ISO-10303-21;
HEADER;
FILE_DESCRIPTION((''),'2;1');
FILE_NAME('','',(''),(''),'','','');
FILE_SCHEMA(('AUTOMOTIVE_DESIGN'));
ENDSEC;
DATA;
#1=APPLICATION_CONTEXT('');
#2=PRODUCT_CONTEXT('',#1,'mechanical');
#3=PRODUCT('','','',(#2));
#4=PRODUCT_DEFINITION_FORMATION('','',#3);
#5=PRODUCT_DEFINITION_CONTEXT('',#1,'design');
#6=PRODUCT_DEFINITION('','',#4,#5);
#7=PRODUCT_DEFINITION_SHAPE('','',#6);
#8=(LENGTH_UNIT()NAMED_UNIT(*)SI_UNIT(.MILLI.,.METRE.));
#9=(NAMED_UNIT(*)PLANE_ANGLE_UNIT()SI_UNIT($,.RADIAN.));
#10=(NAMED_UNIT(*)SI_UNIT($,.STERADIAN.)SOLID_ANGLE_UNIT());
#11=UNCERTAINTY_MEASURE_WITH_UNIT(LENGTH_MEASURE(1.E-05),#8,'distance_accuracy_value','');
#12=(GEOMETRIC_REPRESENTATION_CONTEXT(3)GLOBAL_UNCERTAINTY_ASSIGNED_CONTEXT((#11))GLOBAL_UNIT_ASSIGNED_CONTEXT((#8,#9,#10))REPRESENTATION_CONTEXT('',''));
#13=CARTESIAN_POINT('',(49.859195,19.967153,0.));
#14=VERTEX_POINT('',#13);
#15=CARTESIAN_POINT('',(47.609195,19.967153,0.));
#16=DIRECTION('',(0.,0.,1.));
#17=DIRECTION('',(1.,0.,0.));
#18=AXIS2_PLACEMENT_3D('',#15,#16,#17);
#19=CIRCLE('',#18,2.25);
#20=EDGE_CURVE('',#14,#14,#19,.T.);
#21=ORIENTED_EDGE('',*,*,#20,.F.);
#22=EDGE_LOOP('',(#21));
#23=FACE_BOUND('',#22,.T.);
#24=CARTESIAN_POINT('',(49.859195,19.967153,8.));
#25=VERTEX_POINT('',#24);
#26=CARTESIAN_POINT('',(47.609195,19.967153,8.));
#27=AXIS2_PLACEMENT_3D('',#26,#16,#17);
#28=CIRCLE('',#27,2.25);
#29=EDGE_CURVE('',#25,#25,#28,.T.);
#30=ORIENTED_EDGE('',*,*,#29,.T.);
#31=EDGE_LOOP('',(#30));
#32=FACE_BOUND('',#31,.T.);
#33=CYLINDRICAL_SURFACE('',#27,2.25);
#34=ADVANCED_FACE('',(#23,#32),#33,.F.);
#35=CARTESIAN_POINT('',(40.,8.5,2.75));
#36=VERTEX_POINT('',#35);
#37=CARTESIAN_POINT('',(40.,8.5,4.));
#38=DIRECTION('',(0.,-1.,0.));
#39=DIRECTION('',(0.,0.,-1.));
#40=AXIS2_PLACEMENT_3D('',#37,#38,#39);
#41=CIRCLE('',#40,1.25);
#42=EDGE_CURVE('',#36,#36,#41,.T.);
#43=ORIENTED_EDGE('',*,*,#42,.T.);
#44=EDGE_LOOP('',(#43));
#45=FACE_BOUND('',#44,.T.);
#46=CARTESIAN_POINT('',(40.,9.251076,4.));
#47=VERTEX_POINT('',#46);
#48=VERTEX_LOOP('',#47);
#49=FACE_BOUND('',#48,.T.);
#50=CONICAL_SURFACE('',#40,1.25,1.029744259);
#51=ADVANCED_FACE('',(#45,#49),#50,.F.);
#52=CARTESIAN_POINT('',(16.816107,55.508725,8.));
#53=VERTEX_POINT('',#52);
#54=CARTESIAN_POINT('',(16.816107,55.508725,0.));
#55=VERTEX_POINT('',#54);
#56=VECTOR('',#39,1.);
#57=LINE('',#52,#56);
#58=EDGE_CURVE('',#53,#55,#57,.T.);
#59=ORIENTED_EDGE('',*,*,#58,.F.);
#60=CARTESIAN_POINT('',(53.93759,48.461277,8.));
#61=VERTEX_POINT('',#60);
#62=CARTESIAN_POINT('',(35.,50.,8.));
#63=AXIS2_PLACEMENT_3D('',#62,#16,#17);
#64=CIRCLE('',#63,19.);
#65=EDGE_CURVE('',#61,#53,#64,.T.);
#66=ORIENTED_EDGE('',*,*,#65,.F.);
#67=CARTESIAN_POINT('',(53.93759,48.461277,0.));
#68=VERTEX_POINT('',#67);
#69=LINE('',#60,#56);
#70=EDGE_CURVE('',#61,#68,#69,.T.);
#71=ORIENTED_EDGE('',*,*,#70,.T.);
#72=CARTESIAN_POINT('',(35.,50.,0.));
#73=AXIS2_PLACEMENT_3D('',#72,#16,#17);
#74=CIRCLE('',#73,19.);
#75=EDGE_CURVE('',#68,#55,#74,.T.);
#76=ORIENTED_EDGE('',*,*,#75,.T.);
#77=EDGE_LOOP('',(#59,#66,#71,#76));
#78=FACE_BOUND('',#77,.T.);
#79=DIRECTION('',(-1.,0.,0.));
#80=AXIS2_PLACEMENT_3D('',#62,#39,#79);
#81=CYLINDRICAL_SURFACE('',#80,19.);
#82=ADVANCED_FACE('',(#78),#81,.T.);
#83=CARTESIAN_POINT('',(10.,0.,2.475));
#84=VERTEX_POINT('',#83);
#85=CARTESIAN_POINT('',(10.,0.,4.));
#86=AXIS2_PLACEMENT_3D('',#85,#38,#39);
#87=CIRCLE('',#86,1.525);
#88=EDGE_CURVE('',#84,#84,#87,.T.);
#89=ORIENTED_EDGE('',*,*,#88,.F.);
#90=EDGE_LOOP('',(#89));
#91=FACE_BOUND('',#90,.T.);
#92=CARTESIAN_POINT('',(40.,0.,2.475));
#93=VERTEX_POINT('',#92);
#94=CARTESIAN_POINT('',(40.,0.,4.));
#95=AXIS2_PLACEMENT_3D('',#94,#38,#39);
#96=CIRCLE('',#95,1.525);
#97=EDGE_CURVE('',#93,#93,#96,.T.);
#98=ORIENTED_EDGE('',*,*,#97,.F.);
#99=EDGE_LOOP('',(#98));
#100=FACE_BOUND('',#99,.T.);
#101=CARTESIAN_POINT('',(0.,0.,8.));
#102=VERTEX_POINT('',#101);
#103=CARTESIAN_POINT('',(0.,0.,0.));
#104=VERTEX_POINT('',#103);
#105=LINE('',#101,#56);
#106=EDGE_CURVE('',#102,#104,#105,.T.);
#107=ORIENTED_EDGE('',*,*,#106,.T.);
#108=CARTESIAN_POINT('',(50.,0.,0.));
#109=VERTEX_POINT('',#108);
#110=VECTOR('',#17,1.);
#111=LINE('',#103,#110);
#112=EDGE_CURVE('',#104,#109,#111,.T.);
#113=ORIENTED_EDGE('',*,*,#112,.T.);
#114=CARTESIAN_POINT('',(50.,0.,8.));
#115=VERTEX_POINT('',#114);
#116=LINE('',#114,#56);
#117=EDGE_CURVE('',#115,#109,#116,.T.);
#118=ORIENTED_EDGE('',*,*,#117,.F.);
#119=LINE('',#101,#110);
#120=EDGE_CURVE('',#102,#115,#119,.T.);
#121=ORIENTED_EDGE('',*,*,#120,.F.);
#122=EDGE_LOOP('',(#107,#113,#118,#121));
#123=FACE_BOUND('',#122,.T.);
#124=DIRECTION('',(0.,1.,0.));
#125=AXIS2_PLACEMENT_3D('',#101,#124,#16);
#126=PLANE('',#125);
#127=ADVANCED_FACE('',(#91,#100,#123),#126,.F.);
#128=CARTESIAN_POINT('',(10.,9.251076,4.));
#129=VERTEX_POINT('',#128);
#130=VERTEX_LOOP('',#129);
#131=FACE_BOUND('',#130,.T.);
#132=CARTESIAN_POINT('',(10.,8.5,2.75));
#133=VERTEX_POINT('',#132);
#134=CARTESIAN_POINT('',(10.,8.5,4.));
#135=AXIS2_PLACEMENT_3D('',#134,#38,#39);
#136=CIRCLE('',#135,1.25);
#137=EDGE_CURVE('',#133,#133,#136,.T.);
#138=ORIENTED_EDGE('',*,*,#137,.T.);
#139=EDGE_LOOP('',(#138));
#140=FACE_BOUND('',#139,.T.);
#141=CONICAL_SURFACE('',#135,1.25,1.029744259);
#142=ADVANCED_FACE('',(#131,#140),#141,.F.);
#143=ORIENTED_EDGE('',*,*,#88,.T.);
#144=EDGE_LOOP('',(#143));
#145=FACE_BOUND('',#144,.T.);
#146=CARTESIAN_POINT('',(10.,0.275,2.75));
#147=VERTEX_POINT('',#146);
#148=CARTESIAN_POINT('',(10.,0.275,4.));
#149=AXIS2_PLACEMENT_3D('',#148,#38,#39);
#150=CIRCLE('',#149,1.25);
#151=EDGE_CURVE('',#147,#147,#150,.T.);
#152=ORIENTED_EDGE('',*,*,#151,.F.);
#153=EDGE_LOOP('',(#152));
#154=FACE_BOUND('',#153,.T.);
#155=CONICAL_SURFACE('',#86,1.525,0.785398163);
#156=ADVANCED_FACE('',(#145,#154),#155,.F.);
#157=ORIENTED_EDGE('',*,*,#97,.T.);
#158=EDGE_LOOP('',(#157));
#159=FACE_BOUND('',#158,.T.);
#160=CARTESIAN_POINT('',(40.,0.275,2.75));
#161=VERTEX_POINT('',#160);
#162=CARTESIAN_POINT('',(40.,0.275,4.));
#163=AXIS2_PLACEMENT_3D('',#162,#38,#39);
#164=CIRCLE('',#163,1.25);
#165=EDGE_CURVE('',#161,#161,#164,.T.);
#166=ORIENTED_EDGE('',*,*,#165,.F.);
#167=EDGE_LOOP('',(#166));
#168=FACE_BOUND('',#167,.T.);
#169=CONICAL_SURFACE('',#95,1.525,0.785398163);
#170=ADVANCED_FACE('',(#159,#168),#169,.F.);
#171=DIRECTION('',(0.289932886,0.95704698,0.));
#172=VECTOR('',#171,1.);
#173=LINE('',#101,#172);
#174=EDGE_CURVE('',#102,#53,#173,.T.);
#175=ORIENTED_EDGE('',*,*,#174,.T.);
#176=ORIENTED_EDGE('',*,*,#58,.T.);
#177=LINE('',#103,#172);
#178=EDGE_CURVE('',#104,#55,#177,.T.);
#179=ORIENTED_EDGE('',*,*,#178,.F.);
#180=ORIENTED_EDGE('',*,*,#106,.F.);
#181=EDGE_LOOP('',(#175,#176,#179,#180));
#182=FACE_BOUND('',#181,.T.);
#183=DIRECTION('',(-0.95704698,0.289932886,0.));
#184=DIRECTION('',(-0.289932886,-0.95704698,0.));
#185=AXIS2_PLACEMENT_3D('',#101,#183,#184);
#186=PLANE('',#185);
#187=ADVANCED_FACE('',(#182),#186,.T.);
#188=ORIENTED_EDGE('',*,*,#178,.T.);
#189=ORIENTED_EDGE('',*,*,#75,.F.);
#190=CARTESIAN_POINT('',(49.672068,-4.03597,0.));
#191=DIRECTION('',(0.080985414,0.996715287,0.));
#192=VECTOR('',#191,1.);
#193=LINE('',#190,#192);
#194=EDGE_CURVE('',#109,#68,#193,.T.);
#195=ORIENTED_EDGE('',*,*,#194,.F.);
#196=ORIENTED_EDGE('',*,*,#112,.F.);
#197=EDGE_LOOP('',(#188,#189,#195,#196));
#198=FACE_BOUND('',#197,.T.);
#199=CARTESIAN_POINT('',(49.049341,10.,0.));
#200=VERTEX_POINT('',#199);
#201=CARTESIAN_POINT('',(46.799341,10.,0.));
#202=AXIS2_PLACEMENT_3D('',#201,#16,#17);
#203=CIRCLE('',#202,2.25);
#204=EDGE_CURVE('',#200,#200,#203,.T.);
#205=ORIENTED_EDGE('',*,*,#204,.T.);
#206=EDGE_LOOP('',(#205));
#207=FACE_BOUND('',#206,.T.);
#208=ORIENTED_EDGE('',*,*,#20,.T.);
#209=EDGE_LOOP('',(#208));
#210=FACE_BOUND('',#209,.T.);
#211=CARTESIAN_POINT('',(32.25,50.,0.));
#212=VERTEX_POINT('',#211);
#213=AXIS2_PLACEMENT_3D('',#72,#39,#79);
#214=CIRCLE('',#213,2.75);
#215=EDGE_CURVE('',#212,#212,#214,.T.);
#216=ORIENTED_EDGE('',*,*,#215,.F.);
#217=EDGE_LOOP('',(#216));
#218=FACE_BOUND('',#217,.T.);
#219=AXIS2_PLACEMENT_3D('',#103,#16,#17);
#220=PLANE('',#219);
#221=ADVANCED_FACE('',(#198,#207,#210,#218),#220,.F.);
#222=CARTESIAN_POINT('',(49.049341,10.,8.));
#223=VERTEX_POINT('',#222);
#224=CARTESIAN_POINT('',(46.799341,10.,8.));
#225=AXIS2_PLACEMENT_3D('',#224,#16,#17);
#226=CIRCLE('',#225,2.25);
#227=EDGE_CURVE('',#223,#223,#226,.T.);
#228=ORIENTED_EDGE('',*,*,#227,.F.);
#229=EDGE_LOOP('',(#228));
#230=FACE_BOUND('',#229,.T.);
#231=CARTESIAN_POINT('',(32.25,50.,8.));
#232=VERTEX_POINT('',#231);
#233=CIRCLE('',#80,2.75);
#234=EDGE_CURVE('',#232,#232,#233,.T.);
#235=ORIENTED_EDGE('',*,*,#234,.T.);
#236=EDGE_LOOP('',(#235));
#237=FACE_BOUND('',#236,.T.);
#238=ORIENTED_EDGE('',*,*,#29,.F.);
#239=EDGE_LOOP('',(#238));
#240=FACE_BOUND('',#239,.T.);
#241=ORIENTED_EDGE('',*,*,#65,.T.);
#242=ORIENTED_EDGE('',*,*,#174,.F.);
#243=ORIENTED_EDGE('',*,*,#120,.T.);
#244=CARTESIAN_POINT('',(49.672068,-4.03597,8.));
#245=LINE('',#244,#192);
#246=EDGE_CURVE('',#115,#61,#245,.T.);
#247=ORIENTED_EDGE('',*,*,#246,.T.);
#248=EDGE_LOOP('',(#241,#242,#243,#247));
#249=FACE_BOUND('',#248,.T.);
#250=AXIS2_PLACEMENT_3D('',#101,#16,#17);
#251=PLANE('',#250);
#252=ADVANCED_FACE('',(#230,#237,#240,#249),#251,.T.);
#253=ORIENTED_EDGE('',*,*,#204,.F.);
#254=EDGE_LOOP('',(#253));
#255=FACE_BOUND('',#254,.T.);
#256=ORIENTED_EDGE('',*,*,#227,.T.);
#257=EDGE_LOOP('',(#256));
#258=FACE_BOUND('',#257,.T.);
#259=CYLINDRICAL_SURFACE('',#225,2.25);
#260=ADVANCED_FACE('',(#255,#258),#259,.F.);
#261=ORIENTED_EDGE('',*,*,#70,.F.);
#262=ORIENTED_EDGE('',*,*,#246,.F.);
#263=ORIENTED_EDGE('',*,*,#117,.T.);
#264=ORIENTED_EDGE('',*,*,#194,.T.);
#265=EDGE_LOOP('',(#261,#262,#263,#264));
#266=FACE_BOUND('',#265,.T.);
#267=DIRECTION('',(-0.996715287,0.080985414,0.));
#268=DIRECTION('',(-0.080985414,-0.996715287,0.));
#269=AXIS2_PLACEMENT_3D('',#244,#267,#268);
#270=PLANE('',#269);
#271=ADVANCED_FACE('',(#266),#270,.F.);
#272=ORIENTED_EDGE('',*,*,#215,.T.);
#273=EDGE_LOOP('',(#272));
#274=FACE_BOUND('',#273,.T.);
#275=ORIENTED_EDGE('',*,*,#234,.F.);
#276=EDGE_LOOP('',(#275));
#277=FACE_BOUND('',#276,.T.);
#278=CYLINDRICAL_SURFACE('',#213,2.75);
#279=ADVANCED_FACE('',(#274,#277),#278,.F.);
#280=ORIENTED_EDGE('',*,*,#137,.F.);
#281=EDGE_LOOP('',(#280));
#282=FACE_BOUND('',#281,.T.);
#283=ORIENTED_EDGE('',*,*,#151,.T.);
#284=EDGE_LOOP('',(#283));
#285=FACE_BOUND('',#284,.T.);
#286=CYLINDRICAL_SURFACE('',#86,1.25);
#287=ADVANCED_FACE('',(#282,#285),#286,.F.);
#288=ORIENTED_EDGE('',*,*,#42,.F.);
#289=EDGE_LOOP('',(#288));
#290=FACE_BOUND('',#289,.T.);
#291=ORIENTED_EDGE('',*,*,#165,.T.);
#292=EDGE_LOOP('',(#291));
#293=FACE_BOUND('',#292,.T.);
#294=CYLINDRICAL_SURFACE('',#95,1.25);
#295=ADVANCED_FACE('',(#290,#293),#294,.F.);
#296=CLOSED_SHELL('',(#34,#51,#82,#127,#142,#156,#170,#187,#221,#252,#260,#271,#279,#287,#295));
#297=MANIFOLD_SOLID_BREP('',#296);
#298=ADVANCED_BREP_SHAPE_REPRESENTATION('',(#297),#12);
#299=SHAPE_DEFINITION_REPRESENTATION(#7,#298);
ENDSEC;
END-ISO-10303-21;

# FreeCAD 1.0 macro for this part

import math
import FreeCAD as App
import Part
import Sketcher

doc = App.newDocument("Part")
body = doc.addObject("PartDesign::Body", "Body")

# Sketch on XY plane
sketch1 = body.newObject("Sketcher::SketchObject", "Sketch")
sketch1.AttachmentSupport = (doc.getObject("XY_Plane"), [""])
sketch1.MapMode = "FlatFace"
sketch1.addGeometry(Part.LineSegment(App.Vector(16.816107, 55.508725, 0), App.Vector(0, 0, 0)), False)
sketch1.addGeometry(Part.LineSegment(App.Vector(0, 0, 0), App.Vector(50, 0, 0)), False)
sketch1.addGeometry(Part.LineSegment(App.Vector(50, 0, 0), App.Vector(53.93759, 48.461277, 0)), False)
sketch1.addGeometry(Part.ArcOfCircle(Part.Circle(App.Vector(35, 50, 0), App.Vector(0, 0, 1), 19), math.radians(-4.64521), math.radians(0)), False)
sketch1.addGeometry(Part.ArcOfCircle(Part.Circle(App.Vector(35, 50, 0), App.Vector(0, 0, 1), 19), math.radians(0), math.radians(163.146062)), False)
sketch1.addConstraint(Sketcher.Constraint("Coincident", 0, 2, 1, 1))
sketch1.addConstraint(Sketcher.Constraint("Coincident", 1, 2, 2, 1))
sketch1.addConstraint(Sketcher.Constraint("Tangent", 2, 2, 3, 1))
sketch1.addConstraint(Sketcher.Constraint("Tangent", 3, 2, 4, 1))
sketch1.addConstraint(Sketcher.Constraint("Tangent", 4, 2, 0, 1))
sketch1.addConstraint(Sketcher.Constraint("Horizontal", 1))
sketch1.addConstraint(Sketcher.Constraint("Coincident", 0, 2, -1, 1))
sketch1.addConstraint(Sketcher.Constraint("Equal", 3, 4))
sketch1.addConstraint(Sketcher.Constraint("Horizontal", 4, 3, 3, 2))
sketch1.addConstraint(Sketcher.Constraint("Radius", 3, 19.0))
sketch1.addConstraint(Sketcher.Constraint("DistanceX", 1, 1, 1, 2, 50.0))
sketch1.addConstraint(Sketcher.Constraint("Distance", 0, 58.0))
sketch1.addConstraint(Sketcher.Constraint("DistanceX", -1, 1, 3, 3, 35.0))
pad1 = body.newObject("PartDesign::Pad", "Pad")
pad1.Profile = sketch1
pad1.Length = 8

# Sketch on XY plane
sketch2 = body.newObject("Sketcher::SketchObject", "Sketch001")
sketch2.AttachmentSupport = (doc.getObject("XY_Plane"), [""])
sketch2.MapMode = "FlatFace"
sketch2.AttachmentOffset = App.Placement(App.Vector(0, 0, 8), App.Rotation())
sketch2.addGeometry(Part.Circle(App.Vector(46.799341, 10, 0), App.Vector(0, 0, 1), 2.25), False)
sketch2.addGeometry(Part.Circle(App.Vector(47.609195, 19.967153, 0), App.Vector(0, 0, 1), 2.25), False)
sketch2.addConstraint(Sketcher.Constraint("Equal", 0, 1))
sketch2.addConstraint(Sketcher.Constraint("Diameter", 0, 4.5))
sketch2.addConstraint(Sketcher.Constraint("DistanceY", -1, 1, 0, 3, 10.0))
sketch2.addConstraint(Sketcher.Constraint("DistanceX", -1, 1, 0, 3, 46.799341))
sketch2.addConstraint(Sketcher.Constraint("DistanceX", -1, 1, 1, 3, 47.609195))
sketch2.addConstraint(Sketcher.Constraint("DistanceY", -1, 1, 1, 3, 19.967153))
doc.recompute()
hole = body.newObject("PartDesign::Hole", "Hole")
hole.Profile = sketch2
hole.ThreadType = "None"
hole.Diameter = 4.5
hole.DepthType = "ThroughAll"

# Sketch on XZ plane
sketch3 = body.newObject("Sketcher::SketchObject", "Sketch002")
sketch3.AttachmentSupport = (doc.getObject("XZ_Plane"), [""])
sketch3.MapMode = "FlatFace"
sketch3.addGeometry(Part.Circle(App.Vector(10, 4, 0), App.Vector(0, 0, 1), 1.25), False)
sketch3.addGeometry(Part.Circle(App.Vector(40, 4, 0), App.Vector(0, 0, 1), 1.25), False)
sketch3.addConstraint(Sketcher.Constraint("Equal", 0, 1))
sketch3.addConstraint(Sketcher.Constraint("Horizontal", 0, 3, 1, 3))
sketch3.addConstraint(Sketcher.Constraint("Diameter", 0, 2.5))
sketch3.addConstraint(Sketcher.Constraint("DistanceX", -1, 1, 0, 3, 10.0))
sketch3.addConstraint(Sketcher.Constraint("DistanceY", -1, 1, 0, 3, 4.0))
sketch3.addConstraint(Sketcher.Constraint("DistanceX", -1, 1, 1, 3, 40.0))
doc.recompute()
hole2 = body.newObject("PartDesign::Hole", "Hole001")
hole2.Profile = sketch3
hole2.ThreadType = "None"
hole2.Diameter = 2.5
hole2.DepthType = "Dimension"
hole2.Depth = 8.5
hole2.DrillPoint = "Angled"
hole2.DrillPointAngle = 118
hole2.HoleCutType = "Countersink"
hole2.HoleCutDiameter = 3.05
hole2.HoleCutCountersinkAngle = 90

# Sketch on XY plane
sketch4 = body.newObject("Sketcher::SketchObject", "Sketch003")
sketch4.AttachmentSupport = (doc.getObject("XY_Plane"), [""])
sketch4.MapMode = "FlatFace"
sketch4.addGeometry(Part.Circle(App.Vector(35, 50, 0), App.Vector(0, 0, 1), 2.75), False)
sketch4.addConstraint(Sketcher.Constraint("Diameter", 0, 5.5))
sketch4.addConstraint(Sketcher.Constraint("DistanceX", -1, 1, 0, 3, 35.0))
sketch4.addConstraint(Sketcher.Constraint("DistanceY", -1, 1, 0, 3, 50.0))
doc.recompute()
hole3 = body.newObject("PartDesign::Hole", "Hole002")
hole3.Profile = sketch4
hole3.ThreadType = "None"
hole3.Diameter = 5.5
hole3.DepthType = "ThroughAll"
hole3.Reversed = True

doc.recompute()
